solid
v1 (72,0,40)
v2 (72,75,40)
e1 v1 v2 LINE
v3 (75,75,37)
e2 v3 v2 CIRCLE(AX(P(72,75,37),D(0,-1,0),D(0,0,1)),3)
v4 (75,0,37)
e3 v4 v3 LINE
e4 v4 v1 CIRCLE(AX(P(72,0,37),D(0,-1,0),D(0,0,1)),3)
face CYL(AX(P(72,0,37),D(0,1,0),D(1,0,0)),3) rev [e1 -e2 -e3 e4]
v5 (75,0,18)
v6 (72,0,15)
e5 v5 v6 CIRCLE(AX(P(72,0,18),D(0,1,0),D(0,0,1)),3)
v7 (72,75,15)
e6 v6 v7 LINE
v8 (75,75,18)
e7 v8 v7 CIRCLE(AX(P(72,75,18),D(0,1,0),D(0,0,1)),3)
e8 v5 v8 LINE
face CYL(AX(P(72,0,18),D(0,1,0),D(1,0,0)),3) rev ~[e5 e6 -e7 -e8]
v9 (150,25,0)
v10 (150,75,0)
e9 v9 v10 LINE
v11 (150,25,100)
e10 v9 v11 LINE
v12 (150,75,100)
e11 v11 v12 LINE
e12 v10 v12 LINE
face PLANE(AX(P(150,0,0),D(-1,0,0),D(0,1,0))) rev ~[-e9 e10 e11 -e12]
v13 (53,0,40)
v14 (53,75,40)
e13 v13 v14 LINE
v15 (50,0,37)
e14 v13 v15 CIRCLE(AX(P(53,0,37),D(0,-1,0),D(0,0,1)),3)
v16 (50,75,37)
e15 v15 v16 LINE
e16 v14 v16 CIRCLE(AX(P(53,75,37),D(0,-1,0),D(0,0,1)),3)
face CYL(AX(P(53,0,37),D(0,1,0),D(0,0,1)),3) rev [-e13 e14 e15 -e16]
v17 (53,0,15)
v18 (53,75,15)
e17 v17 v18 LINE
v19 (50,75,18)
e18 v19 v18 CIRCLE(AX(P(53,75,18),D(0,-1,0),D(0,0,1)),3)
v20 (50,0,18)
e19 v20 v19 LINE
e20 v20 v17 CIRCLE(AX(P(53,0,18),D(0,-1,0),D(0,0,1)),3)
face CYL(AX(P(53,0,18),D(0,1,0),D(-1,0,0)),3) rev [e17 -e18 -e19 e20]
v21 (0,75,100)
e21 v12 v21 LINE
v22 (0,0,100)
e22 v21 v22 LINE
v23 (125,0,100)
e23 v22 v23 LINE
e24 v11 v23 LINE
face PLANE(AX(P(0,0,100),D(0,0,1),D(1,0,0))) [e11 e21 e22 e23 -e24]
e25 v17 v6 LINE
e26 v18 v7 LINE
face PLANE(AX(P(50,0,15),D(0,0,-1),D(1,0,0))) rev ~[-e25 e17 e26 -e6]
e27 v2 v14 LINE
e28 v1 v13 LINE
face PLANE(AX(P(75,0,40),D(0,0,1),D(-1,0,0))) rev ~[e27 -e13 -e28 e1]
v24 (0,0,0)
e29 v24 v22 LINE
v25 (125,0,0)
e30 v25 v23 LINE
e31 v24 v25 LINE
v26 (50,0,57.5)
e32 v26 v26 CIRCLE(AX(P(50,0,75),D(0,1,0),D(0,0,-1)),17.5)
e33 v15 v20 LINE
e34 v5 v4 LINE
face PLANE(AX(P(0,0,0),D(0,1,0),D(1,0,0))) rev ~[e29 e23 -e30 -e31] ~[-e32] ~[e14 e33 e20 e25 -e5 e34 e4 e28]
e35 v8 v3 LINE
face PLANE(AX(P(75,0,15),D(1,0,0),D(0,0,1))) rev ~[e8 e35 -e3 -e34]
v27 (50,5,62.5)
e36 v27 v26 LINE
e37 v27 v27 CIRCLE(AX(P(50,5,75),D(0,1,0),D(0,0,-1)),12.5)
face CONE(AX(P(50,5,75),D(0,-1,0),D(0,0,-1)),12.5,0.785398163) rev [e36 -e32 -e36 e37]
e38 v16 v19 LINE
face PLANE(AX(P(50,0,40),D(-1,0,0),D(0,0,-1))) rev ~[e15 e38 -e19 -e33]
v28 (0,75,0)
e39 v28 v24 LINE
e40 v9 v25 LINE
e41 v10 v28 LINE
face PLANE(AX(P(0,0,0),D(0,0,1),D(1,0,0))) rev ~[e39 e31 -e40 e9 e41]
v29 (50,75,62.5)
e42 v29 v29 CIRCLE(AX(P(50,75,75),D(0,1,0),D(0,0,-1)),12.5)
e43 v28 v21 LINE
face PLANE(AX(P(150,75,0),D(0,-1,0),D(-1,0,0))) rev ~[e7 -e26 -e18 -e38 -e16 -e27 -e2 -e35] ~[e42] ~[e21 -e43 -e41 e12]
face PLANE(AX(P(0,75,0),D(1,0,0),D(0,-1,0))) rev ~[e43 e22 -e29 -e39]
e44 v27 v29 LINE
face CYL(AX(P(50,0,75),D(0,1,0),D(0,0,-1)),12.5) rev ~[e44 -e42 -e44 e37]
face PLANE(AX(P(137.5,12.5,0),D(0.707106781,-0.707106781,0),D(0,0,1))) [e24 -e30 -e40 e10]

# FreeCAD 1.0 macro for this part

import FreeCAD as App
import Part
import Sketcher
from FreeCAD import Vector
Q = App.Units.Quantity


def edges_at(feature, points):
    """Names of the edges that pass closest to the given points."""
    edges = feature.Shape.Edges
    near = lambda p: min(range(len(edges)), key=lambda i: edges[i].distToShape(Part.Vertex(*p))[0])
    return sorted({f"Edge{near(p) + 1}" for p in points})


def add_polygon(sketch, points):
    """Adds a closed chain of lines whose ends are joined by coincident constraints."""
    first, n = sketch.GeometryCount, len(points)
    for a, b in zip(points, points[1:] + points[:1]):
        sketch.addGeometry(Part.LineSegment(App.Vector(*a, 0), App.Vector(*b, 0)), False)
    for i in range(n):
        sketch.addConstraint(Sketcher.Constraint("Coincident", first + i, 2, first + (i + 1) % n, 1))

doc = App.newDocument("Part")
body = doc.addObject("PartDesign::Body", "Body")

sketch1 = body.newObject("Sketcher::SketchObject", "Sketch")
sketch1.AttachmentSupport = (doc.getObject("XY_Plane"), [""])
sketch1.MapMode = "FlatFace"
add_polygon(sketch1, [(0, 75), (0, 0), (150, 0), (150, 75)])
sketch1.addConstraint([
    Sketcher.Constraint("Vertical", 0),
    Sketcher.Constraint("Horizontal", 1),
    Sketcher.Constraint("Vertical", 2),
    Sketcher.Constraint("Horizontal", 3),
    Sketcher.Constraint("Coincident", 0, 2, -1, 1),
    Sketcher.Constraint("DistanceX", 1, 1, 1, 2, Q("150 mm")),
    Sketcher.Constraint("DistanceY", 0, 2, 0, 1, Q("75 mm")),
])
pad1 = body.newObject("PartDesign::Pad", "Pad")
pad1.Profile = sketch1
pad1.Length = 100
doc.recompute()

chamfer = body.newObject("PartDesign::Chamfer", "Chamfer")
chamfer.Base = (pad1, edges_at(pad1, [(150, 0, 50)]))
chamfer.Size = 25

sketch2 = body.newObject("Sketcher::SketchObject", "Sketch001")
sketch2.AttachmentSupport = (doc.getObject("XZ_Plane"), [""])
sketch2.MapMode = "FlatFace"
sketch2.addGeometry(Part.Circle(Vector(50, 75, 0), Vector(0, 0, 1), 12.5), False)
sketch2.addConstraint([
    Sketcher.Constraint("Diameter", 0, Q("25 mm")),
    Sketcher.Constraint("DistanceX", -1, 1, 0, 3, Q("50 mm")),
    Sketcher.Constraint("DistanceY", -1, 1, 0, 3, Q("75 mm")),
])
doc.recompute()
hole = body.newObject("PartDesign::Hole", "Hole")
hole.Profile = sketch2
hole.ThreadType = "None"
hole.Diameter = 25
hole.DepthType = "ThroughAll"

sketch3 = body.newObject("Sketcher::SketchObject", "Sketch002")
sketch3.AttachmentSupport = (doc.getObject("XZ_Plane"), [""])
sketch3.MapMode = "FlatFace"
add_polygon(sketch3, [(75, 15), (75, 40), (50, 40), (50, 15)])
sketch3.addConstraint([
    Sketcher.Constraint("Vertical", 0),
    Sketcher.Constraint("Horizontal", 1),
    Sketcher.Constraint("Vertical", 2),
    Sketcher.Constraint("Horizontal", 3),
    Sketcher.Constraint("Equal", 3, 0),
    Sketcher.Constraint("DistanceX", 1, 2, 1, 1, Q("25 mm")),
    Sketcher.Constraint("DistanceX", -1, 1, 1, 2, Q("50 mm")),
    Sketcher.Constraint("DistanceY", -1, 1, 0, 2, Q("40 mm")),
])
pocket1 = body.newObject("PartDesign::Pocket", "Pocket")
pocket1.Profile = sketch3
pocket1.Type = "ThroughAll"
doc.recompute()

fillet = body.newObject("PartDesign::Fillet", "Fillet")
fillet.Base = (pocket1, edges_at(pocket1, [
    (50, 37.5, 15),
    (75, 37.5, 15),
    (50, 37.5, 40),
    (75, 37.5, 40),
]))
fillet.Radius = 3
doc.recompute()

chamfer2 = body.newObject("PartDesign::Chamfer", "Chamfer001")
chamfer2.Base = (fillet, edges_at(fillet, [(50, 0, 87.5)]))
chamfer2.Size = 5

doc.recompute()
